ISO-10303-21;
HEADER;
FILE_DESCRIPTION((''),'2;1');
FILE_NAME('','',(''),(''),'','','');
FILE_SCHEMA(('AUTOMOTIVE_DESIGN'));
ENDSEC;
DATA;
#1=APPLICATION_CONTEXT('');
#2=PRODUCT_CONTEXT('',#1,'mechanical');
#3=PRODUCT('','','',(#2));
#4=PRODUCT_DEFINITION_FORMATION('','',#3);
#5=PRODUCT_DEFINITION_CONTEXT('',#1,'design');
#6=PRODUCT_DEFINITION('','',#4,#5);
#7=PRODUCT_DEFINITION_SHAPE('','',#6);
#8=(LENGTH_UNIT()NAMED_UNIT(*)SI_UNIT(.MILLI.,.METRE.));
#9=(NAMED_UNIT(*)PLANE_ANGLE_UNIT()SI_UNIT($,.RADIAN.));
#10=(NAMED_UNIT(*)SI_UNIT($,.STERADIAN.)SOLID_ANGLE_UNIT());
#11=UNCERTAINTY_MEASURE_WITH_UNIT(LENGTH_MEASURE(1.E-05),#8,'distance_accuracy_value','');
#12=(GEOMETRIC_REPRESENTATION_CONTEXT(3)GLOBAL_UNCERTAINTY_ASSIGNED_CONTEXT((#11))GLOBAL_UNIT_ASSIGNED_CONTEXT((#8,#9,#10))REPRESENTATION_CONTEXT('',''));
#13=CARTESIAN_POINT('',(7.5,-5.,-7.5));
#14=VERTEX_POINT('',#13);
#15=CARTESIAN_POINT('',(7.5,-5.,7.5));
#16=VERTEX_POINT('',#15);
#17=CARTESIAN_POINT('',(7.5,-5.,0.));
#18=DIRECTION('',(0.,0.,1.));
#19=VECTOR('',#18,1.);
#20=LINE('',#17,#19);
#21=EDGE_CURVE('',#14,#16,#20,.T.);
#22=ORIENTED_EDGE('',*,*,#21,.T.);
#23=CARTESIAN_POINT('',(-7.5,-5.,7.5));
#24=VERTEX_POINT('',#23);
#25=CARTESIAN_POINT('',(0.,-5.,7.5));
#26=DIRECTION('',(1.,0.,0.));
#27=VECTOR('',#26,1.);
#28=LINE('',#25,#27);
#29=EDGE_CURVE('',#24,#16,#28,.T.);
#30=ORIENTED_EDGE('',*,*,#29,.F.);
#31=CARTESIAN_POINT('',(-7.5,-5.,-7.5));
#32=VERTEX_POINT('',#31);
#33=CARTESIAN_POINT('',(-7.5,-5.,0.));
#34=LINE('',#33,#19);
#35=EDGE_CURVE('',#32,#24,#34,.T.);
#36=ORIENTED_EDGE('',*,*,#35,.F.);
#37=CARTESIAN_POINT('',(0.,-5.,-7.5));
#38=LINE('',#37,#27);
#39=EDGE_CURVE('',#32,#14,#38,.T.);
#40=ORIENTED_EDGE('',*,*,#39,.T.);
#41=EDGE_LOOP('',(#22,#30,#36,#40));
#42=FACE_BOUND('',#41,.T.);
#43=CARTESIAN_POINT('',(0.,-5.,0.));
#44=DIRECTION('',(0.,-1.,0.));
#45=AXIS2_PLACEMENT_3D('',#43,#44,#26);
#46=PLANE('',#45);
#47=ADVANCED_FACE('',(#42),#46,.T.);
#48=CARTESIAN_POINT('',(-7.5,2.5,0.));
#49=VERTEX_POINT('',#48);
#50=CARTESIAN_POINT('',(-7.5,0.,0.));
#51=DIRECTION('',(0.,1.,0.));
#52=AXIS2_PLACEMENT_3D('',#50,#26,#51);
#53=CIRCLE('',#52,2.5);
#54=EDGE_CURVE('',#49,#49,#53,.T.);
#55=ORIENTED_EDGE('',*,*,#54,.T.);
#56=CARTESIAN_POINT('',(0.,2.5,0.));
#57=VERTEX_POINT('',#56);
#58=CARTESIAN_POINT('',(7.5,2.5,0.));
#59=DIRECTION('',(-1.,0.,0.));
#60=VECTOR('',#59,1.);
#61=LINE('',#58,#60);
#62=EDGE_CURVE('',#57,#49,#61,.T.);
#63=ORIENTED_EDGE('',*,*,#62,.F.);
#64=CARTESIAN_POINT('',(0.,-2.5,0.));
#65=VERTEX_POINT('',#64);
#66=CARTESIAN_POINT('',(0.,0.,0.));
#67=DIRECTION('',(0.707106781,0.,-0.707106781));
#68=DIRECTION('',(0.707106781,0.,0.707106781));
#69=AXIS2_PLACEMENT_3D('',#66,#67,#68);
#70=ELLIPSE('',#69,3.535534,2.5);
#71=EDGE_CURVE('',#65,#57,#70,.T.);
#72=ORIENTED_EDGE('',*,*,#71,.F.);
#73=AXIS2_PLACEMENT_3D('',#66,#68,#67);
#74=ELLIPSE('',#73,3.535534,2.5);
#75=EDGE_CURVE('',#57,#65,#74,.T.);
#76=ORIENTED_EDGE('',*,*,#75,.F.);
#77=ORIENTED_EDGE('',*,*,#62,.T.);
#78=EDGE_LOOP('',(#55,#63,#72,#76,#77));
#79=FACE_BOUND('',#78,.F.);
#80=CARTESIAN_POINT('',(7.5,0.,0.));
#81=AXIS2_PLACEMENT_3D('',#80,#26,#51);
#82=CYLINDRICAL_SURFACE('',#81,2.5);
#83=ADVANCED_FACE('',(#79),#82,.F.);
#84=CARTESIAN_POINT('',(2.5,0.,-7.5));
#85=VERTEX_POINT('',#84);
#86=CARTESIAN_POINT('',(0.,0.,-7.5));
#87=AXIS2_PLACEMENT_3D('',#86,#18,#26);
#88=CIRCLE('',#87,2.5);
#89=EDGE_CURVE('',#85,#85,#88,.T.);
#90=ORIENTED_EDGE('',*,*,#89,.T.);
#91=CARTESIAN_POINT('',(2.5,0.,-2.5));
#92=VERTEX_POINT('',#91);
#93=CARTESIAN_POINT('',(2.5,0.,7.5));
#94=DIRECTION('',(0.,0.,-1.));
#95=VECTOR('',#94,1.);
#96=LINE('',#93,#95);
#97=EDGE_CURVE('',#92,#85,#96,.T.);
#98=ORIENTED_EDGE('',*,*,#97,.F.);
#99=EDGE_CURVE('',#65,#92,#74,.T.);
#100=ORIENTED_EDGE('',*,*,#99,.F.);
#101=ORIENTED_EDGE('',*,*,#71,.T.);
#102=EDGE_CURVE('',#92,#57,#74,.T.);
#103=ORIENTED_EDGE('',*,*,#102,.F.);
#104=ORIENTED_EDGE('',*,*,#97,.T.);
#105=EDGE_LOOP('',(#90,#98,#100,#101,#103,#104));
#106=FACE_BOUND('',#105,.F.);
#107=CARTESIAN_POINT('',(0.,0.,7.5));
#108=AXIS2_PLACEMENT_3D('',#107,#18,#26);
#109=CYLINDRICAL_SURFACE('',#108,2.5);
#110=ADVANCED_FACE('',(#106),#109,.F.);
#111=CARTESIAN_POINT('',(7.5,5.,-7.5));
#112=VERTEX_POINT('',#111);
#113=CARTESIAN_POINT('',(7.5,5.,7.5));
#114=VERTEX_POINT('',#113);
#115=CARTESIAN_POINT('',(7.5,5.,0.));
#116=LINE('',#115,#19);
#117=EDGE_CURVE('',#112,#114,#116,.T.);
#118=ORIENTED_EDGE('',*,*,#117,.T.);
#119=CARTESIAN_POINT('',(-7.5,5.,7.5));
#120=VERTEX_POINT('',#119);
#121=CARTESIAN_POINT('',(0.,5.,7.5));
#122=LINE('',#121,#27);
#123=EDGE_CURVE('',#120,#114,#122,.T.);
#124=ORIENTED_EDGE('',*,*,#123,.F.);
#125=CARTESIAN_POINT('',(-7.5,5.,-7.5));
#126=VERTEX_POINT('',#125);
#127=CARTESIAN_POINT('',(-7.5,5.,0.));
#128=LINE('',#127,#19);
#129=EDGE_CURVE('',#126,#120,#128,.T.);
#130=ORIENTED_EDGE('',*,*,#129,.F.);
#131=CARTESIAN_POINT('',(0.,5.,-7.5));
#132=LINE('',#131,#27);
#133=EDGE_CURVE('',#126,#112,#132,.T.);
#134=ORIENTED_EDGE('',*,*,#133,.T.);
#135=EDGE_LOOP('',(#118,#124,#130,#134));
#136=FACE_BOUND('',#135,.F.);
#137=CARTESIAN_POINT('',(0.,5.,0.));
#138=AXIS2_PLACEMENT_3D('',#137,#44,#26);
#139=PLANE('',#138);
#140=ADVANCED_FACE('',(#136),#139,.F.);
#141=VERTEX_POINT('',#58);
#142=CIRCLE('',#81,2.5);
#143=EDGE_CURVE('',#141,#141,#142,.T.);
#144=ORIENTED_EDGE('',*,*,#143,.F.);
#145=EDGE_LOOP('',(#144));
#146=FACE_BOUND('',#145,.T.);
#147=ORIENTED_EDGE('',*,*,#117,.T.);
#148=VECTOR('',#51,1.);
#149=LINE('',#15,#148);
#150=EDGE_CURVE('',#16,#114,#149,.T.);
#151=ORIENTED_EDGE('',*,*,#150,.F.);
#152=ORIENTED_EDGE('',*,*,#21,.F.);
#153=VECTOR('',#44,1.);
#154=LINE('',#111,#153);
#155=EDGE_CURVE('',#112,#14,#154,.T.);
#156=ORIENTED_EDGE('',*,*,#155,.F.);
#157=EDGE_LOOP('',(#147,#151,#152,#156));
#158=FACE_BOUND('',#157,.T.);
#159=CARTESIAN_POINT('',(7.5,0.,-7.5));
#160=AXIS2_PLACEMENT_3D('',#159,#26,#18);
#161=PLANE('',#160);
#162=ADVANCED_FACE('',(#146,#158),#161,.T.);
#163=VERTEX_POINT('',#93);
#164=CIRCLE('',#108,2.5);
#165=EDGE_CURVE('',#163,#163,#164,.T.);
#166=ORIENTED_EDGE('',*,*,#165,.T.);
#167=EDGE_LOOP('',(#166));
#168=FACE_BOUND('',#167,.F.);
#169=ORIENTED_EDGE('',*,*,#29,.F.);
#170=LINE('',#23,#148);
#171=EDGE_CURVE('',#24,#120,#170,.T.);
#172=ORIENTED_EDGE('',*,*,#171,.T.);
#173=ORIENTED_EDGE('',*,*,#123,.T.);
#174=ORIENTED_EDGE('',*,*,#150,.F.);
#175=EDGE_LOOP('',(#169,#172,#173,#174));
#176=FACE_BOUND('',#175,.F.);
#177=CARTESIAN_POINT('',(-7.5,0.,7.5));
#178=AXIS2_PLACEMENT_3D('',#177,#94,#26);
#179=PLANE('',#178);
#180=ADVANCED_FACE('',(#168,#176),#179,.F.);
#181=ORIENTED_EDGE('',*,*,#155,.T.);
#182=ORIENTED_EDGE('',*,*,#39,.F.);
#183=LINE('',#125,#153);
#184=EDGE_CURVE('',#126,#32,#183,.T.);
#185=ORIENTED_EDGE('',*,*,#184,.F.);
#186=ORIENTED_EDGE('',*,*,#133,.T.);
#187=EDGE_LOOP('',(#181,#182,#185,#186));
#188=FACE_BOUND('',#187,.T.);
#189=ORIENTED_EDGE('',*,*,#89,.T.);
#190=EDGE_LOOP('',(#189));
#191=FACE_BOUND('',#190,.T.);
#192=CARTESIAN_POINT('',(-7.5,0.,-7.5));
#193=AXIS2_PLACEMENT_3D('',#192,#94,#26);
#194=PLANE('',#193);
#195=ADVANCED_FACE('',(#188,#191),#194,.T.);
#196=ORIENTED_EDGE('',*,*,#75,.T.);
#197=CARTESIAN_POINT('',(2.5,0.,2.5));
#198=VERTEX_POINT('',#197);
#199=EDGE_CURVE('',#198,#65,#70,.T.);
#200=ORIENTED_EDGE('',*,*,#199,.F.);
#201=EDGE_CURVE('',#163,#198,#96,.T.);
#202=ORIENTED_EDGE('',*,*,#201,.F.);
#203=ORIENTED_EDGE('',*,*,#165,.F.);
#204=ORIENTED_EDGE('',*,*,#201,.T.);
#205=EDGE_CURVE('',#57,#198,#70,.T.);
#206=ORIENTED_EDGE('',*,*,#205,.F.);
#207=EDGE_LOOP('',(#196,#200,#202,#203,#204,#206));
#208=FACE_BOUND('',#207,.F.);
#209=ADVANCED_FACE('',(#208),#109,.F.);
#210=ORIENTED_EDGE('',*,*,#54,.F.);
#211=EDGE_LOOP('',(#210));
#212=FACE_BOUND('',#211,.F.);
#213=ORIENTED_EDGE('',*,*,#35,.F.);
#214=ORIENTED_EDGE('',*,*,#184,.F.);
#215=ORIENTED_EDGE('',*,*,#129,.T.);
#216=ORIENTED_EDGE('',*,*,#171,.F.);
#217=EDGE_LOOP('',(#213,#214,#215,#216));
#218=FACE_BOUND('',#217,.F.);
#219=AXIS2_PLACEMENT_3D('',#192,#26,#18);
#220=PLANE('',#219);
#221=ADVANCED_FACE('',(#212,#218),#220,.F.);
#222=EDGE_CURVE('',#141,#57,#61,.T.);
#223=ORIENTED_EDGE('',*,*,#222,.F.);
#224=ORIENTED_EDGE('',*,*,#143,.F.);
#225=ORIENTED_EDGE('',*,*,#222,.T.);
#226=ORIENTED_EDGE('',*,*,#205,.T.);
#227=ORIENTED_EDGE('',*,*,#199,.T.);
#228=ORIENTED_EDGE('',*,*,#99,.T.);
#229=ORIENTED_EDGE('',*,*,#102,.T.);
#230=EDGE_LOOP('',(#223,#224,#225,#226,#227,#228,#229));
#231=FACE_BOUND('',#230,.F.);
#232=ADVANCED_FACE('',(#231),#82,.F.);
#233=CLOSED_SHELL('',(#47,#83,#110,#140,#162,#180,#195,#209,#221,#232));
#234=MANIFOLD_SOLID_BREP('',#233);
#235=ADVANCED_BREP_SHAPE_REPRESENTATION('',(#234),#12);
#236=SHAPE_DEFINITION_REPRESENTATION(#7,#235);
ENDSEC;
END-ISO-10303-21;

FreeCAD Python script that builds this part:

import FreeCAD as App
import Part
import Sketcher

V = App.Vector
Q = App.Units.Quantity

doc = App.newDocument("Part")
body = doc.addObject("PartDesign::Body", "Body")

sketch1 = doc.addObject("Sketcher::SketchObject", "Sketch")
body.addObject(sketch1)
sketch1.AttachmentSupport = (doc.XZ_Plane, [""])
sketch1.MapMode = "FlatFace"
sketch1.addGeometry(Part.LineSegment(V(-8, 8, 0), V(-8, -8, 0)), False)
sketch1.addGeometry(Part.LineSegment(V(-8, -8, 0), V(8, -8, 0)), False)
sketch1.addGeometry(Part.LineSegment(V(8, -8, 0), V(8, 8, 0)), False)
sketch1.addGeometry(Part.LineSegment(V(8, 8, 0), V(-8, 8, 0)), False)
sketch1.addConstraint(Sketcher.Constraint("Coincident", 0, 2, 1, 1))
sketch1.addConstraint(Sketcher.Constraint("Coincident", 1, 2, 2, 1))
sketch1.addConstraint(Sketcher.Constraint("Coincident", 2, 2, 3, 1))
sketch1.addConstraint(Sketcher.Constraint("Coincident", 3, 2, 0, 1))
sketch1.addConstraint(Sketcher.Constraint("Vertical", 0))
sketch1.addConstraint(Sketcher.Constraint("Horizontal", 1))
sketch1.addConstraint(Sketcher.Constraint("Vertical", 2))
sketch1.addConstraint(Sketcher.Constraint("Horizontal", 3))
sketch1.addConstraint(Sketcher.Constraint("Symmetric", 0, 2, 2, 2, -1, 1))
sketch1.addConstraint(Sketcher.Constraint("Equal", 3, 0))
sketch1.addConstraint(Sketcher.Constraint("DistanceX", 1, 1, 1, 2, Q("15 mm")))
pad1 = doc.addObject("PartDesign::Pad", "Pad")
body.addObject(pad1)
pad1.Profile = sketch1
pad1.Length = 10
pad1.Midplane = True

sketch2 = doc.addObject("Sketcher::SketchObject", "Sketch001")
body.addObject(sketch2)
sketch2.AttachmentSupport = (doc.YZ_Plane, [""])
sketch2.MapMode = "FlatFace"
sketch2.AttachmentOffset = App.Placement(V(0, 0, 7.5), App.Rotation())
sketch2.addGeometry(Part.Circle(V(0, 0, 0), V(0, 0, 1), 2.5), False)
sketch2.addConstraint(Sketcher.Constraint("Coincident", 0, 3, -1, 1))
sketch2.addConstraint(Sketcher.Constraint("Diameter", 0, Q("5 mm")))
pocket1 = doc.addObject("PartDesign::Pocket", "Pocket")
body.addObject(pocket1)
pocket1.Profile = sketch2
pocket1.Type = "ThroughAll"

sketch3 = doc.addObject("Sketcher::SketchObject", "Sketch002")
body.addObject(sketch3)
sketch3.AttachmentSupport = (doc.XY_Plane, [""])
sketch3.MapMode = "FlatFace"
sketch3.AttachmentOffset = App.Placement(V(0, 0, 7.5), App.Rotation())
sketch3.addGeometry(Part.Circle(V(0, 0, 0), V(0, 0, 1), 2.5), False)
sketch3.addConstraint(Sketcher.Constraint("Coincident", 0, 3, -1, 1))
sketch3.addConstraint(Sketcher.Constraint("Diameter", 0, Q("5 mm")))
pocket2 = doc.addObject("PartDesign::Pocket", "Pocket001")
body.addObject(pocket2)
pocket2.Profile = sketch3
pocket2.Type = "ThroughAll"

doc.recompute()
